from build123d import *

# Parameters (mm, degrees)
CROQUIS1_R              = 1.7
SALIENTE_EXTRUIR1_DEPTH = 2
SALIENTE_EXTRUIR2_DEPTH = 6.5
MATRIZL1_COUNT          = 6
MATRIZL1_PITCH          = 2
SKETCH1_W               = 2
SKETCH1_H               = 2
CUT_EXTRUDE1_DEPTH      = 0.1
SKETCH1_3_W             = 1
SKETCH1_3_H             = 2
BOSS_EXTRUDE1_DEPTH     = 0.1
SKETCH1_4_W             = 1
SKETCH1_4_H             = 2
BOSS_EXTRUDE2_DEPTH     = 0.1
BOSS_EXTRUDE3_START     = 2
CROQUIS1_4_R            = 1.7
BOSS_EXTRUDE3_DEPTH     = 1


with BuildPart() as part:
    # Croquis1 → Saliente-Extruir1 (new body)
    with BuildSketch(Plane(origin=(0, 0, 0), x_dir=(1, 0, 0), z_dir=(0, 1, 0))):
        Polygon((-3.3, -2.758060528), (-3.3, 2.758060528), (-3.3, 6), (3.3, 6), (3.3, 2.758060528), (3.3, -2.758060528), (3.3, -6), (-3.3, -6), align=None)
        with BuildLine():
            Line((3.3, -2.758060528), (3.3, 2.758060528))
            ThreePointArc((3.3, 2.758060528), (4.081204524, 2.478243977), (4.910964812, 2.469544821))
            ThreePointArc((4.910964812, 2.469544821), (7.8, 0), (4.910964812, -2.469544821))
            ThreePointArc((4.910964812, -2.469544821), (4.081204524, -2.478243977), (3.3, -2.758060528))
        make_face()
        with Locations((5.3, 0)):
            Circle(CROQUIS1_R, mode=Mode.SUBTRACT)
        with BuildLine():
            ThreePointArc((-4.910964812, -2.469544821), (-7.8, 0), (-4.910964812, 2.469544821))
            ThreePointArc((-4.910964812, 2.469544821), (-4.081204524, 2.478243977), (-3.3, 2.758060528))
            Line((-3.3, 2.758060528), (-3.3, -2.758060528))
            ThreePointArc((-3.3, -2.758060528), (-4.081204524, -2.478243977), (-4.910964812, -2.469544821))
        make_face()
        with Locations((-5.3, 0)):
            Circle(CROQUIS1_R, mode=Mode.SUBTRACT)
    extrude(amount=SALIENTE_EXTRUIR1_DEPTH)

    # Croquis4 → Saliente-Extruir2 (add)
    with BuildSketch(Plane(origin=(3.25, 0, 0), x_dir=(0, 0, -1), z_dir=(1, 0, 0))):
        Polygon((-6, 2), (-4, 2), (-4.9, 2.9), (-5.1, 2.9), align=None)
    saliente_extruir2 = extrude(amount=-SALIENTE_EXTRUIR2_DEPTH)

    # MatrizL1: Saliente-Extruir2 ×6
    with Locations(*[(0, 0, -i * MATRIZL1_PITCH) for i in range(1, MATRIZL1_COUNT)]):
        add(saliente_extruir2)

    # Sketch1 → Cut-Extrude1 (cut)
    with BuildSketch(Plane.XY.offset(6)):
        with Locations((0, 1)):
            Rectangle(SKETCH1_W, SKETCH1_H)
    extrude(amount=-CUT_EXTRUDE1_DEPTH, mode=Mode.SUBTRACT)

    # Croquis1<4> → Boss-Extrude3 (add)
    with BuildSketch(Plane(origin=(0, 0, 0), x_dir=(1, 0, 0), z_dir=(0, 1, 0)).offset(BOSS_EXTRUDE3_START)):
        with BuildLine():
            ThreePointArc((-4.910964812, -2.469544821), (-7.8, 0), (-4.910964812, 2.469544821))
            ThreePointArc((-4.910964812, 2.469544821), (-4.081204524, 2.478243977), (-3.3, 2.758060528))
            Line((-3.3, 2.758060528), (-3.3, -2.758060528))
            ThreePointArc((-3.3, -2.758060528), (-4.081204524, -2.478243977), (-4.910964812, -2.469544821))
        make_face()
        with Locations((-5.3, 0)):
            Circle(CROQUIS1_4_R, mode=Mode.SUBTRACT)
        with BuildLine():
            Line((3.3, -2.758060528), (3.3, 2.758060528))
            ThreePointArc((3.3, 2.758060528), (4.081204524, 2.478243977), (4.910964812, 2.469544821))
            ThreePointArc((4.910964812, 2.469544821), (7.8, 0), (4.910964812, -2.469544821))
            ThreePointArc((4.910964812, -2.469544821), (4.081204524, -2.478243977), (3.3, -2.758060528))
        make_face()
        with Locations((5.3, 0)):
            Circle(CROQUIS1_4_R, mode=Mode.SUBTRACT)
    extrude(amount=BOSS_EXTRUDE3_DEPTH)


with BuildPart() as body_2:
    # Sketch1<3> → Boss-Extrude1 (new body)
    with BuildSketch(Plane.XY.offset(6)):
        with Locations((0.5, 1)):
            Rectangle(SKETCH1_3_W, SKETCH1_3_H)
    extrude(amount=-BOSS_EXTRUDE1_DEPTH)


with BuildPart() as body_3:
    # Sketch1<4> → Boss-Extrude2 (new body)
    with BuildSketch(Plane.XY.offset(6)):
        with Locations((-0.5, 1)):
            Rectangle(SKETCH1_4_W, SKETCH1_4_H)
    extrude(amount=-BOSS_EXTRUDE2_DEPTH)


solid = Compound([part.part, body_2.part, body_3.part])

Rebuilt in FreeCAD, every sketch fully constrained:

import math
import FreeCAD as App
import Part
import Sketcher


def add_polygon(sketch, points):
    """Adds a closed chain of lines whose ends are joined by coincident constraints."""
    first, n = sketch.GeometryCount, len(points)
    for a, b in zip(points, points[1:] + points[:1]):
        sketch.addGeometry(Part.LineSegment(App.Vector(*a, 0), App.Vector(*b, 0)), False)
    for i in range(n):
        sketch.addConstraint(Sketcher.Constraint("Coincident", first + i, 2, first + (i + 1) % n, 1))

doc = App.newDocument("Part")
params = doc.addObject("Spreadsheet::Sheet", "Params")
for row, (alias, value) in enumerate([
    ("sketch1_diameter", "3.4 mm"),
    ("sketch1_radius", "2.5 mm"),
    ("sketch1_width", "6.6 mm"),
    ("pad1_length", "2 mm"),
    ("sketch2_height", "2 mm"),
    ("sketch2_height2", "0.2 mm"),
    ("pad2_length", "6.5 mm"),
    ("linearpattern_pitch", "2 mm"),
    ("sketch3_width", "2 mm"),
    ("pocket1_length", "0.1 mm"),
    ("sketch4_diameter", "3.4 mm"),
    ("sketch4_radius", "2.5 mm"),
    ("pad3_length", "1 mm"),
    ("sketch5_width", "1 mm"),
    ("sketch5_height", "2 mm"),
    ("pad4_length", "0.1 mm"),
    ("sketch6_width", "1 mm"),
    ("sketch6_height", "2 mm"),
    ("pad5_length", "0.1 mm"),
], start=1):
    params.set(f"A{row}", alias)
    params.set(f"B{row}", "=" + value)
    params.setAlias(f"B{row}", alias)

body = doc.addObject("PartDesign::Body", "Body")

sketch1 = doc.addObject("Sketcher::SketchObject", "Sketch")
body.addObject(sketch1)
sketch1.AttachmentSupport = (doc.XZ_Plane, [""])
sketch1.MapMode = "FlatFace"
sketch1.addGeometry(Part.LineSegment(App.Vector(-3.3, -6, 0), App.Vector(-3.3, -2.758061, 0)), False)
sketch1.addGeometry(Part.ArcOfCircle(Part.Circle(App.Vector(-4.52193, -4.93909, 0), App.Vector(0, 0, 1), 2.5), math.radians(60.740109), math.radians(98.952412)), False)
sketch1.addGeometry(Part.ArcOfCircle(Part.Circle(App.Vector(-5.3, 0, 0), App.Vector(0, 0, 1), 2.5), math.radians(81.047588), math.radians(278.952412)), False)
sketch1.addGeometry(Part.ArcOfCircle(Part.Circle(App.Vector(-4.52193, 4.93909, 0), App.Vector(0, 0, 1), 2.5), math.radians(-98.952412), math.radians(-60.740109)), False)
sketch1.addGeometry(Part.LineSegment(App.Vector(-3.3, 2.758061, 0), App.Vector(-3.3, 6, 0)), False)
sketch1.addGeometry(Part.LineSegment(App.Vector(-3.3, 6, 0), App.Vector(3.3, 6, 0)), False)
sketch1.addGeometry(Part.LineSegment(App.Vector(3.3, 6, 0), App.Vector(3.3, 2.758061, 0)), False)
sketch1.addGeometry(Part.ArcOfCircle(Part.Circle(App.Vector(4.52193, 4.93909, 0), App.Vector(0, 0, 1), 2.5), math.radians(-119.259891), math.radians(-81.047588)), False)
sketch1.addGeometry(Part.ArcOfCircle(Part.Circle(App.Vector(5.3, 0, 0), App.Vector(0, 0, 1), 2.5), math.radians(-98.952412), math.radians(98.952412)), False)
sketch1.addGeometry(Part.ArcOfCircle(Part.Circle(App.Vector(4.52193, -4.93909, 0), App.Vector(0, 0, 1), 2.5), math.radians(81.047588), math.radians(119.259891)), False)
sketch1.addGeometry(Part.LineSegment(App.Vector(3.3, -2.758061, 0), App.Vector(3.3, -6, 0)), False)
sketch1.addGeometry(Part.LineSegment(App.Vector(3.3, -6, 0), App.Vector(-3.3, -6, 0)), False)
sketch1.addGeometry(Part.Circle(App.Vector(5.3, 0, 0), App.Vector(0, 0, 1), 1.7), False)
sketch1.addGeometry(Part.Circle(App.Vector(-5.3, 0, 0), App.Vector(0, 0, 1), 1.7), False)
sketch1.addConstraint(Sketcher.Constraint("Coincident", 0, 2, 1, 1))
sketch1.addConstraint(Sketcher.Constraint("Tangent", 1, 2, 2, 2))
sketch1.addConstraint(Sketcher.Constraint("Tangent", 2, 1, 3, 1))
sketch1.addConstraint(Sketcher.Constraint("Coincident", 3, 2, 4, 1))
sketch1.addConstraint(Sketcher.Constraint("Coincident", 4, 2, 5, 1))
sketch1.addConstraint(Sketcher.Constraint("Coincident", 5, 2, 6, 1))
sketch1.addConstraint(Sketcher.Constraint("Coincident", 6, 2, 7, 1))
sketch1.addConstraint(Sketcher.Constraint("Tangent", 7, 2, 8, 2))
sketch1.addConstraint(Sketcher.Constraint("Tangent", 8, 1, 9, 1))
sketch1.addConstraint(Sketcher.Constraint("Coincident", 9, 2, 10, 1))
sketch1.addConstraint(Sketcher.Constraint("Coincident", 10, 2, 11, 1))
sketch1.addConstraint(Sketcher.Constraint("Coincident", 11, 2, 0, 1))
sketch1.addConstraint(Sketcher.Constraint("Vertical", 0))
sketch1.addConstraint(Sketcher.Constraint("Vertical", 4))
sketch1.addConstraint(Sketcher.Constraint("Horizontal", 5))
sketch1.addConstraint(Sketcher.Constraint("Vertical", 6))
sketch1.addConstraint(Sketcher.Constraint("Vertical", 10))
sketch1.addConstraint(Sketcher.Constraint("Horizontal", 11))
sketch1.addConstraint(Sketcher.Constraint("Coincident", 12, 3, 8, 3))
sketch1.addConstraint(Sketcher.Constraint("Coincident", 13, 3, 2, 3))
sketch1.addConstraint(Sketcher.Constraint("Equal", 1, 2))
sketch1.addConstraint(Sketcher.Constraint("Equal", 2, 3))
sketch1.addConstraint(Sketcher.Constraint("Equal", 3, 7))
sketch1.addConstraint(Sketcher.Constraint("Equal", 7, 8))
sketch1.addConstraint(Sketcher.Constraint("Equal", 8, 9))
sketch1.addConstraint(Sketcher.Constraint("Equal", 12, 13))
sketch1.addConstraint(Sketcher.Constraint("Symmetric", 1, 3, 7, 3, -1, 1))
sketch1.addConstraint(Sketcher.Constraint("Symmetric", 3, 3, 9, 3, -1, 1))
sketch1.addConstraint(Sketcher.Constraint("Symmetric", 4, 2, 10, 2, -1, 1))
sketch1.addConstraint(Sketcher.Constraint("Symmetric", 3, 3, 7, 3, -2))
sketch1.addConstraint(Sketcher.Constraint("Horizontal", 3, 2, 6, 2))
sketch1.addConstraint(Sketcher.Constraint("Horizontal", 0, 2, 9, 2))
sketch1.addConstraint(Sketcher.Constraint("Diameter", 12, 3.4))
sketch1.addConstraint(Sketcher.Constraint("Radius", 1, 2.5))
sketch1.addConstraint(Sketcher.Constraint("DistanceX", 5, 1, 5, 2, 6.6))
sketch1.addConstraint(Sketcher.Constraint("DistanceY", -1, 1, 4, 2, 6.0))
sketch1.addConstraint(Sketcher.Constraint("DistanceX", 2, 3, 0, 2, 2.0))
sketch1.addConstraint(Sketcher.Constraint("DistanceY", 0, 1, 0, 2, 3.241939))
sketch1.setExpression("Constraints[32]", "Params.sketch1_diameter")
sketch1.setExpression("Constraints[33]", "Params.sketch1_radius")
sketch1.setExpression("Constraints[34]", "Params.sketch1_width")
pad1 = doc.addObject("PartDesign::Pad", "Pad")
body.addObject(pad1)
pad1.Profile = sketch1
pad1.setExpression("Length", "Params.pad1_length")
pad1.Reversed = True

sketch2 = doc.addObject("Sketcher::SketchObject", "Sketch001")
body.addObject(sketch2)
sketch2.AttachmentSupport = (doc.YZ_Plane, [""])
sketch2.MapMode = "FlatFace"
sketch2.AttachmentOffset = App.Placement(App.Vector(0, 0, 3.25), App.Rotation())
add_polygon(sketch2, [(2, 6), (2, 4), (2.9, 4.9), (2.9, 5.1)])
sketch2.addConstraint(Sketcher.Constraint("Vertical", 0))
sketch2.addConstraint(Sketcher.Constraint("Vertical", 2))
sketch2.addConstraint(Sketcher.Constraint("Perpendicular", 1, 3))
sketch2.addConstraint(Sketcher.Constraint("Equal", 1, 3))
sketch2.addConstraint(Sketcher.Constraint("DistanceY", 0, 2, 0, 1, 2.0))
sketch2.addConstraint(Sketcher.Constraint("DistanceY", 2, 1, 2, 2, 0.2))
sketch2.addConstraint(Sketcher.Constraint("DistanceX", -1, 1, 0, 2, 2.0))
sketch2.addConstraint(Sketcher.Constraint("DistanceY", -1, 1, 0, 2, 4.0))
sketch2.setExpression("Constraints[8]", "Params.sketch2_height")
sketch2.setExpression("Constraints[9]", "Params.sketch2_height2")
pad2 = doc.addObject("PartDesign::Pad", "Pad001")
body.addObject(pad2)
pad2.Profile = sketch2
pad2.setExpression("Length", "Params.pad2_length")
pad2.Reversed = True
doc.recompute()

linearpattern = doc.addObject("PartDesign::LinearPattern", "LinearPattern")
body.addObject(linearpattern)
linearpattern.Originals = [pad2]
linearpattern.Direction = (doc.Z_Axis, [""])
linearpattern.Mode = "offset"
linearpattern.setExpression("Offset", "Params.linearpattern_pitch")
linearpattern.Occurrences = 6
linearpattern.Reversed = True
body.Tip = linearpattern

sketch3 = doc.addObject("Sketcher::SketchObject", "Sketch002")
body.addObject(sketch3)
sketch3.AttachmentSupport = (doc.XY_Plane, [""])
sketch3.MapMode = "FlatFace"
sketch3.AttachmentOffset = App.Placement(App.Vector(0, 0, 6), App.Rotation())
add_polygon(sketch3, [(-1, 2), (-1, 0), (1, 0), (1, 2)])
sketch3.addConstraint(Sketcher.Constraint("Vertical", 0))
sketch3.addConstraint(Sketcher.Constraint("Horizontal", 1))
sketch3.addConstraint(Sketcher.Constraint("Vertical", 2))
sketch3.addConstraint(Sketcher.Constraint("Horizontal", 3))
sketch3.addConstraint(Sketcher.Constraint("Symmetric", 0, 2, 1, 2, -1, 1))
sketch3.addConstraint(Sketcher.Constraint("Equal", 3, 0))
sketch3.addConstraint(Sketcher.Constraint("DistanceX", 1, 1, 1, 2, 2.0))
sketch3.setExpression("Constraints[10]", "Params.sketch3_width")
pocket1 = doc.addObject("PartDesign::Pocket", "Pocket")
body.addObject(pocket1)
pocket1.Profile = sketch3
pocket1.setExpression("Length", "Params.pocket1_length")

sketch4 = doc.addObject("Sketcher::SketchObject", "Sketch003")
body.addObject(sketch4)
sketch4.AttachmentSupport = (doc.XZ_Plane, [""])
sketch4.MapMode = "FlatFace"
sketch4.AttachmentOffset = App.Placement(App.Vector(0, 0, -2), App.Rotation())
sketch4.addGeometry(Part.ArcOfCircle(Part.Circle(App.Vector(-5.3, 0, 0), App.Vector(0, 0, 1), 2.5), math.radians(81.047588), math.radians(278.952412)), False)
sketch4.addGeometry(Part.ArcOfCircle(Part.Circle(App.Vector(-4.52193, 4.93909, 0), App.Vector(0, 0, 1), 2.5), math.radians(-98.952412), math.radians(-60.740109)), False)
sketch4.addGeometry(Part.LineSegment(App.Vector(-3.3, 2.758061, 0), App.Vector(-3.3, -2.758061, 0)), False)
sketch4.addGeometry(Part.ArcOfCircle(Part.Circle(App.Vector(-4.52193, -4.93909, 0), App.Vector(0, 0, 1), 2.5), math.radians(60.740109), math.radians(98.952412)), False)
sketch4.addGeometry(Part.Circle(App.Vector(-5.3, 0, 0), App.Vector(0, 0, 1), 1.7), False)
sketch4.addGeometry(Part.LineSegment(App.Vector(3.3, -2.758061, 0), App.Vector(3.3, 2.758061, 0)), False)
sketch4.addGeometry(Part.ArcOfCircle(Part.Circle(App.Vector(4.52193, 4.93909, 0), App.Vector(0, 0, 1), 2.5), math.radians(-119.259891), math.radians(-81.047588)), False)
sketch4.addGeometry(Part.ArcOfCircle(Part.Circle(App.Vector(5.3, 0, 0), App.Vector(0, 0, 1), 2.5), math.radians(-98.952412), math.radians(98.952412)), False)
sketch4.addGeometry(Part.ArcOfCircle(Part.Circle(App.Vector(4.52193, -4.93909, 0), App.Vector(0, 0, 1), 2.5), math.radians(81.047588), math.radians(119.259891)), False)
sketch4.addGeometry(Part.Circle(App.Vector(5.3, 0, 0), App.Vector(0, 0, 1), 1.7), False)
sketch4.addConstraint(Sketcher.Constraint("Tangent", 0, 1, 1, 1))
sketch4.addConstraint(Sketcher.Constraint("Coincident", 1, 2, 2, 1))
sketch4.addConstraint(Sketcher.Constraint("Coincident", 2, 2, 3, 1))
sketch4.addConstraint(Sketcher.Constraint("Tangent", 3, 2, 0, 2))
sketch4.addConstraint(Sketcher.Constraint("Coincident", 5, 2, 6, 1))
sketch4.addConstraint(Sketcher.Constraint("Tangent", 6, 2, 7, 2))
sketch4.addConstraint(Sketcher.Constraint("Tangent", 7, 1, 8, 1))
sketch4.addConstraint(Sketcher.Constraint("Coincident", 8, 2, 5, 1))
sketch4.addConstraint(Sketcher.Constraint("Vertical", 2))
sketch4.addConstraint(Sketcher.Constraint("Vertical", 5))
sketch4.addConstraint(Sketcher.Constraint("Coincident", 4, 3, 0, 3))
sketch4.addConstraint(Sketcher.Constraint("Coincident", 9, 3, 7, 3))
sketch4.addConstraint(Sketcher.Constraint("Equal", 0, 1))
sketch4.addConstraint(Sketcher.Constraint("Equal", 1, 3))
sketch4.addConstraint(Sketcher.Constraint("Equal", 3, 6))
sketch4.addConstraint(Sketcher.Constraint("Equal", 6, 7))
sketch4.addConstraint(Sketcher.Constraint("Equal", 7, 8))
sketch4.addConstraint(Sketcher.Constraint("Equal", 4, 9))
sketch4.addConstraint(Sketcher.Constraint("Symmetric", 3, 3, 6, 3, -1, 1))
sketch4.addConstraint(Sketcher.Constraint("Symmetric", 1, 3, 8, 3, -1, 1))
sketch4.addConstraint(Sketcher.Constraint("Symmetric", 1, 3, 6, 3, -2))
sketch4.addConstraint(Sketcher.Constraint("Horizontal", 1, 2, 5, 2))
sketch4.addConstraint(Sketcher.Constraint("Diameter", 4, 3.4))
sketch4.addConstraint(Sketcher.Constraint("Radius", 0, 2.5))
sketch4.addConstraint(Sketcher.Constraint("DistanceX", 0, 3, 1, 2, 2.0))
sketch4.addConstraint(Sketcher.Constraint("DistanceX", 0, 3, -1, 1, 5.3))
sketch4.addConstraint(Sketcher.Constraint("DistanceY", 2, 2, 2, 1, 5.516121))
sketch4.setExpression("Constraints[22]", "Params.sketch4_diameter")
sketch4.setExpression("Constraints[23]", "Params.sketch4_radius")
pad3 = doc.addObject("PartDesign::Pad", "Pad002")
body.addObject(pad3)
pad3.Profile = sketch4
pad3.setExpression("Length", "Params.pad3_length")
pad3.Reversed = True
body2 = doc.addObject("PartDesign::Body", "Body001")

sketch5 = doc.addObject("Sketcher::SketchObject", "Sketch004")
body2.addObject(sketch5)
sketch5.AttachmentSupport = (doc.getObject("XY_Plane001"), [""])
sketch5.MapMode = "FlatFace"
sketch5.AttachmentOffset = App.Placement(App.Vector(0, 0, 6), App.Rotation())
add_polygon(sketch5, [(0, 2), (0, 0), (1, 0), (1, 2)])
sketch5.addConstraint(Sketcher.Constraint("Vertical", 0))
sketch5.addConstraint(Sketcher.Constraint("Horizontal", 1))
sketch5.addConstraint(Sketcher.Constraint("Vertical", 2))
sketch5.addConstraint(Sketcher.Constraint("Horizontal", 3))
sketch5.addConstraint(Sketcher.Constraint("Coincident", 0, 2, -1, 1))
sketch5.addConstraint(Sketcher.Constraint("DistanceX", 1, 1, 1, 2, 1.0))
sketch5.addConstraint(Sketcher.Constraint("DistanceY", 0, 2, 0, 1, 2.0))
sketch5.setExpression("Constraints[9]", "Params.sketch5_width")
sketch5.setExpression("Constraints[10]", "Params.sketch5_height")
pad4 = doc.addObject("PartDesign::Pad", "Pad003")
body2.addObject(pad4)
pad4.Profile = sketch5
pad4.setExpression("Length", "Params.pad4_length")
pad4.Reversed = True
body3 = doc.addObject("PartDesign::Body", "Body002")

sketch6 = doc.addObject("Sketcher::SketchObject", "Sketch005")
body3.addObject(sketch6)
sketch6.AttachmentSupport = (doc.getObject("XY_Plane002"), [""])
sketch6.MapMode = "FlatFace"
sketch6.AttachmentOffset = App.Placement(App.Vector(0, 0, 6), App.Rotation())
add_polygon(sketch6, [(-1, 2), (-1, 0), (0, 0), (0, 2)])
sketch6.addConstraint(Sketcher.Constraint("Vertical", 0))
sketch6.addConstraint(Sketcher.Constraint("Horizontal", 1))
sketch6.addConstraint(Sketcher.Constraint("Vertical", 2))
sketch6.addConstraint(Sketcher.Constraint("Horizontal", 3))
sketch6.addConstraint(Sketcher.Constraint("Coincident", 1, 2, -1, 1))
sketch6.addConstraint(Sketcher.Constraint("DistanceX", 1, 1, 1, 2, 1.0))
sketch6.addConstraint(Sketcher.Constraint("DistanceY", 0, 2, 0, 1, 2.0))
sketch6.setExpression("Constraints[9]", "Params.sketch6_width")
sketch6.setExpression("Constraints[10]", "Params.sketch6_height")
pad5 = doc.addObject("PartDesign::Pad", "Pad004")
body3.addObject(pad5)
pad5.Profile = sketch6
pad5.setExpression("Length", "Params.pad5_length")
pad5.Reversed = True

doc.recompute()
